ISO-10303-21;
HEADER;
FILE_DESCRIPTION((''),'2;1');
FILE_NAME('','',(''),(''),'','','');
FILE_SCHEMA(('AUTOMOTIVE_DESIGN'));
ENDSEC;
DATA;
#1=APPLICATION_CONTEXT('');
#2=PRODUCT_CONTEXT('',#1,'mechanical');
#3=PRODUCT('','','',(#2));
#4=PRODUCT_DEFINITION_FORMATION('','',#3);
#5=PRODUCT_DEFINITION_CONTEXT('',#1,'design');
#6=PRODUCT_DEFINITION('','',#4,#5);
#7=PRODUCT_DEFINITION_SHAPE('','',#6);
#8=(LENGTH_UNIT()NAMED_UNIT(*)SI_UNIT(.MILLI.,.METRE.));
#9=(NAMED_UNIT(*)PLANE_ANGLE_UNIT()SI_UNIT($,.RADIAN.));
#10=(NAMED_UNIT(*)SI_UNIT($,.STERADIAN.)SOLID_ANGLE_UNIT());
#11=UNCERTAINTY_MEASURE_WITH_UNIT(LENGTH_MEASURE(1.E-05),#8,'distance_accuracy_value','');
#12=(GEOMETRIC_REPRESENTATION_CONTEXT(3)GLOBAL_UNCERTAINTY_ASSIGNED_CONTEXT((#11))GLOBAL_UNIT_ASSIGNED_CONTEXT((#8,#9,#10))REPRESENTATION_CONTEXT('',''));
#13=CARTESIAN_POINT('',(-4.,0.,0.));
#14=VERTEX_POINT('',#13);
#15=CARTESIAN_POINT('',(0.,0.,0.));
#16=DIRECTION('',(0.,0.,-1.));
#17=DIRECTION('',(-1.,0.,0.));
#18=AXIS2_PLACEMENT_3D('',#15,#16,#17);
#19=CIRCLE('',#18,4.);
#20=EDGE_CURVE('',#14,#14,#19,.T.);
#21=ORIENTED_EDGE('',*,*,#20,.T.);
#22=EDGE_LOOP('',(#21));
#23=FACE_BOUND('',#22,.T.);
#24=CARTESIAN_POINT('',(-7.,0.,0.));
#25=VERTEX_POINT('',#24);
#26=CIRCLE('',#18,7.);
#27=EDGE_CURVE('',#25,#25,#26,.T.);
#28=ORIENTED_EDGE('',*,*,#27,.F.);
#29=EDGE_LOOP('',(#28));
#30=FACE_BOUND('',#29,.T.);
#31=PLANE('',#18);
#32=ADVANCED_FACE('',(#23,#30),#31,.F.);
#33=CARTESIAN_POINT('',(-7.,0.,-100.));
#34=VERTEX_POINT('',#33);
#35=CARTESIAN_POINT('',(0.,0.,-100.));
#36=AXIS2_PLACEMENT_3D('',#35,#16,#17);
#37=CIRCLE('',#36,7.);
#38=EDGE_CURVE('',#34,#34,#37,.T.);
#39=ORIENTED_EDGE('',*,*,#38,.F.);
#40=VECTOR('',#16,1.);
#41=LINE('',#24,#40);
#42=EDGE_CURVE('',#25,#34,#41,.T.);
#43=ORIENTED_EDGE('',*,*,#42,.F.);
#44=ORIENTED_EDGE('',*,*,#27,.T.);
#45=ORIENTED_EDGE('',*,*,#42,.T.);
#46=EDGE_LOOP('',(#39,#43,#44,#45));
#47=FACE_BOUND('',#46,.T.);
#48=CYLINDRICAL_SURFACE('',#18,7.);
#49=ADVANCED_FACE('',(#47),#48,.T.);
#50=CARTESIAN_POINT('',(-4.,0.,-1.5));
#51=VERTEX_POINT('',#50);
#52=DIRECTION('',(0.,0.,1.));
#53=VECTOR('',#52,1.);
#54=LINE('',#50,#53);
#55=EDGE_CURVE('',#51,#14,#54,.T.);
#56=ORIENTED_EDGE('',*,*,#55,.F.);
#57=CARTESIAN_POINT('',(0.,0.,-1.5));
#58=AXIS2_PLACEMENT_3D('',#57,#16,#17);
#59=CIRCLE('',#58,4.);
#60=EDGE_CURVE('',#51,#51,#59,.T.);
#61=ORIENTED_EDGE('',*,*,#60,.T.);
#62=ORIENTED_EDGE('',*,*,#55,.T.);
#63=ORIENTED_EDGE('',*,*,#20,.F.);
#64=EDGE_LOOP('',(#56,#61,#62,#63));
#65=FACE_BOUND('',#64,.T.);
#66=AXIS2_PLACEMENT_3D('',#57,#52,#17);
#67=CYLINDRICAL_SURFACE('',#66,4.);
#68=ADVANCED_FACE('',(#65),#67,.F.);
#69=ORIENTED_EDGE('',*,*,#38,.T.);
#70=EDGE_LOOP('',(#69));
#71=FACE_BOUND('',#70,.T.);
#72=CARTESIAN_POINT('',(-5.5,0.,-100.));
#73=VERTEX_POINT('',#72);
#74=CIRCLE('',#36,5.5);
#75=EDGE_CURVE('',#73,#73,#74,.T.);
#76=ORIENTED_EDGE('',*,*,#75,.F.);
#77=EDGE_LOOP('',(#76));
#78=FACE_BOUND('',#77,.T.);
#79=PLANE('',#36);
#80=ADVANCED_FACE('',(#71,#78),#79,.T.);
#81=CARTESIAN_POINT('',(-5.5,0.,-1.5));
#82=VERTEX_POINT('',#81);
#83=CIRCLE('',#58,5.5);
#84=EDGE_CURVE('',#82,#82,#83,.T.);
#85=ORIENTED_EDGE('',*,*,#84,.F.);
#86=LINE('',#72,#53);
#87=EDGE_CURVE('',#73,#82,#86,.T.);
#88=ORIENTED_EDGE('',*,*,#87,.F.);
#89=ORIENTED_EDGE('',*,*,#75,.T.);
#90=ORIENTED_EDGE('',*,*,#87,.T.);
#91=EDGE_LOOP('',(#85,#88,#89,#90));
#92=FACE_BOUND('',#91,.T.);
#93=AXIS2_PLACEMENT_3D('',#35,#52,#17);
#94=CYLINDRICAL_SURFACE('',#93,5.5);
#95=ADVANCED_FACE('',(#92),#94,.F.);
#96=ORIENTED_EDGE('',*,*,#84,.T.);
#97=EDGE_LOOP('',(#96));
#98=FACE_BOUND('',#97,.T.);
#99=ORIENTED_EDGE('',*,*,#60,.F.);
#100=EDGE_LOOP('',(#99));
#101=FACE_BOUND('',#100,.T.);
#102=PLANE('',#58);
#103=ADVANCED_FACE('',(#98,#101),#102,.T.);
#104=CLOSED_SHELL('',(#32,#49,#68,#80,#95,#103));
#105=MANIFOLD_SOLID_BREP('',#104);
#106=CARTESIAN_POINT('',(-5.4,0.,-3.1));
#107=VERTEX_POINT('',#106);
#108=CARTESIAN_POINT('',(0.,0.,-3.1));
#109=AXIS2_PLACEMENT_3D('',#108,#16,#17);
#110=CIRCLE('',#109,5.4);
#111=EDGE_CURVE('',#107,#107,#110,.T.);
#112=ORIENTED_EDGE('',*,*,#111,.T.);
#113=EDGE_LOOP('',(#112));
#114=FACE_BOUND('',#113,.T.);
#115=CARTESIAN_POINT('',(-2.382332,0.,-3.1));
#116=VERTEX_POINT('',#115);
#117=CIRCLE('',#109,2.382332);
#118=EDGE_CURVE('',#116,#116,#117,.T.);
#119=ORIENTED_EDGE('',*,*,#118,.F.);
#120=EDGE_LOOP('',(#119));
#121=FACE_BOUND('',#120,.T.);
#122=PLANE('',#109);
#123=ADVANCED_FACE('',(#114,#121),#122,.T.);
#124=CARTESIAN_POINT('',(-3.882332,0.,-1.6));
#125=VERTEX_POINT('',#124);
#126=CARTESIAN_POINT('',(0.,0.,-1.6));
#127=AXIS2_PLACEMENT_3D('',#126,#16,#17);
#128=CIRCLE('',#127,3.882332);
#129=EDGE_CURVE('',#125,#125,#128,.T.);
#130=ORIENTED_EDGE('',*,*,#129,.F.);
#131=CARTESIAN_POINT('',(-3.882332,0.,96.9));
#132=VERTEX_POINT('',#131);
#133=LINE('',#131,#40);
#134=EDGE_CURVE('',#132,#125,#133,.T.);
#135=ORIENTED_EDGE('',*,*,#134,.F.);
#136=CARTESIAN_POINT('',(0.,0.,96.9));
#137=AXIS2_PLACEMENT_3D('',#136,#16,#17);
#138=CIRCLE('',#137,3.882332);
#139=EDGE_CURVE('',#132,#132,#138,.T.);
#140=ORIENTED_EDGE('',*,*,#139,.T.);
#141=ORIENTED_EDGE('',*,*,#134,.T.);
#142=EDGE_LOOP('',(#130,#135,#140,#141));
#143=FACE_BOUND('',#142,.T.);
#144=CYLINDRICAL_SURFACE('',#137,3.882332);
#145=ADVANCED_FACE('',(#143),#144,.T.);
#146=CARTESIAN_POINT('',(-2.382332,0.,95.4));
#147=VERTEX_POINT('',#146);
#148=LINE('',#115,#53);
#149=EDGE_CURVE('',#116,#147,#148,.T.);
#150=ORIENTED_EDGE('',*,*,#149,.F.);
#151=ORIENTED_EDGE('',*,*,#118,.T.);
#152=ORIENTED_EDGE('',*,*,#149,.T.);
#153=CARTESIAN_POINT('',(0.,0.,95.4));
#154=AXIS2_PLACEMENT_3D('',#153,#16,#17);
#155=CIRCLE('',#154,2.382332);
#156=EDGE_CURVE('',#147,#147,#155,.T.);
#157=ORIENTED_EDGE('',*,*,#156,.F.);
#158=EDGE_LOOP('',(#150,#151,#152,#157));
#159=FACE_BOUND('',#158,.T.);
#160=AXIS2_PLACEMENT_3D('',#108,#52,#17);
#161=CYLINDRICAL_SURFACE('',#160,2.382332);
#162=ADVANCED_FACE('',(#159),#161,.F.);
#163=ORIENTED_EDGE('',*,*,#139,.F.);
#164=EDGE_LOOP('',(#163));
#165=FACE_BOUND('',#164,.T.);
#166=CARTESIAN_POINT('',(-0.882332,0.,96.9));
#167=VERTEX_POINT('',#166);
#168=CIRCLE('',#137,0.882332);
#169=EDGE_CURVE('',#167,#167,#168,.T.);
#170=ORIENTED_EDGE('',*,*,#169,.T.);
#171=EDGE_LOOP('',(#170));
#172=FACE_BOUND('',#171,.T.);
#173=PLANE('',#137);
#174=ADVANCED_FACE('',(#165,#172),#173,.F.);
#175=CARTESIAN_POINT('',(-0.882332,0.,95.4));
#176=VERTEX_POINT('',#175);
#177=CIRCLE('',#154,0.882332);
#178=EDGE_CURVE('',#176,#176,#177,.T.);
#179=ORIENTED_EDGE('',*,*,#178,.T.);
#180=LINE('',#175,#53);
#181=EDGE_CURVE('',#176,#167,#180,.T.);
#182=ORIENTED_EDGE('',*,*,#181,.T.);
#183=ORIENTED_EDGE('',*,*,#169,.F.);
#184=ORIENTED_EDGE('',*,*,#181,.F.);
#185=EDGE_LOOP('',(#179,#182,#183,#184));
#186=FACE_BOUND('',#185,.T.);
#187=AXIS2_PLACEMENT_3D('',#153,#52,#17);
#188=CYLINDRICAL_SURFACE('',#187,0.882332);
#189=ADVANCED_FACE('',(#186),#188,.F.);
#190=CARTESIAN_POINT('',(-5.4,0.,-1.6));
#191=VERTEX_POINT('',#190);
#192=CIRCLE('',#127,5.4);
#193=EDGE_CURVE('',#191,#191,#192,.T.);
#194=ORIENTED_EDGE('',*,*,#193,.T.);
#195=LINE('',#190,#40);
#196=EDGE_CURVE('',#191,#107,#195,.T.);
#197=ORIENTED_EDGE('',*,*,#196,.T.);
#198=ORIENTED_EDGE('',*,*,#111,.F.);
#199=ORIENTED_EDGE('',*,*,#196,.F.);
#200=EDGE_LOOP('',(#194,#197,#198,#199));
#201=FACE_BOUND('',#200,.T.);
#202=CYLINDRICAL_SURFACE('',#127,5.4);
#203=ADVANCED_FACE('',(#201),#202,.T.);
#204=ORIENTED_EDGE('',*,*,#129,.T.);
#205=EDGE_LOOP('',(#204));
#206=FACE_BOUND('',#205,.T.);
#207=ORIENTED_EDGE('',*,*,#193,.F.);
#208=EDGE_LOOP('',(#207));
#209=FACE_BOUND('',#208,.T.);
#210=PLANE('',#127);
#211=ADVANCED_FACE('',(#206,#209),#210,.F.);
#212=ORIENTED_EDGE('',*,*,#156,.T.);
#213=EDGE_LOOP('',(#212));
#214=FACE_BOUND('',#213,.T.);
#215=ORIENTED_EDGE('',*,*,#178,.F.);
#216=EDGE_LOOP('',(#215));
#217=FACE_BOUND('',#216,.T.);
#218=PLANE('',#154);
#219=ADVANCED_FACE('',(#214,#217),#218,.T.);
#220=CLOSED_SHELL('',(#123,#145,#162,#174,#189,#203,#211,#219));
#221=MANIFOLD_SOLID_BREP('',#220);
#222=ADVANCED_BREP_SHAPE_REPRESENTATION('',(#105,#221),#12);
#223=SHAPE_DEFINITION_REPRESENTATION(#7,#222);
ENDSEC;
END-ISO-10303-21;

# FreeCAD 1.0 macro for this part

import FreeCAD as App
import Part
import Sketcher
from FreeCAD import Vector

doc = App.newDocument("Part")
params = doc.addObject("Spreadsheet::Sheet", "Params")
for row, (alias, value) in enumerate([
    ("sketch1_width", "3 mm"),
    ("sketch1_height", "100 mm"),
    ("revolution_angle", "360 deg"),
], start=1):
    params.set(f"A{row}", alias)
    params.set(f"B{row}", "=" + value)
    params.setAlias(f"B{row}", alias)

body = doc.addObject("PartDesign::Body", "Body")
body.AllowCompound = True

sketch1 = doc.addObject("Sketcher::SketchObject", "Sketch")
body.addObject(sketch1)
sketch1.AttachmentSupport = (doc.XZ_Plane, [""])
sketch1.MapMode = "FlatFace"
sketch1.addGeometry([
    Part.LineSegment(Vector(-5.4, -3.1, 0), Vector(-2.382332, -3.1, 0)),
    Part.LineSegment(Vector(-2.382332, -3.1, 0), Vector(-2.382332, 95.4, 0)),
    Part.LineSegment(Vector(-2.382332, 95.4, 0), Vector(-0.882332, 95.4, 0)),
    Part.LineSegment(Vector(-0.882332, 95.4, 0), Vector(-0.882332, 96.9, 0)),
    Part.LineSegment(Vector(-0.882332, 96.9, 0), Vector(-3.882332, 96.9, 0)),
    Part.LineSegment(Vector(-3.882332, 96.9, 0), Vector(-3.882332, -1.6, 0)),
    Part.LineSegment(Vector(-3.882332, -1.6, 0), Vector(-5.4, -1.6, 0)),
    Part.LineSegment(Vector(-5.4, -1.6, 0), Vector(-5.4, -3.1, 0)),
    Part.LineSegment(Vector(-4, 0, 0), Vector(-7, 0, 0)),
    Part.LineSegment(Vector(-7, 0, 0), Vector(-7, -100, 0)),
    Part.LineSegment(Vector(-7, -100, 0), Vector(-5.5, -100, 0)),
    Part.LineSegment(Vector(-5.5, -100, 0), Vector(-5.5, -1.5, 0)),
    Part.LineSegment(Vector(-5.5, -1.5, 0), Vector(-4, -1.5, 0)),
    Part.LineSegment(Vector(-4, -1.5, 0), Vector(-4, 0, 0)),
], False)
sketch1.addConstraint([
    Sketcher.Constraint("Coincident", 0, 2, 1, 1),
    Sketcher.Constraint("Coincident", 1, 2, 2, 1),
    Sketcher.Constraint("Coincident", 2, 2, 3, 1),
    Sketcher.Constraint("Coincident", 3, 2, 4, 1),
    Sketcher.Constraint("Coincident", 4, 2, 5, 1),
    Sketcher.Constraint("Coincident", 5, 2, 6, 1),
    Sketcher.Constraint("Coincident", 6, 2, 7, 1),
    Sketcher.Constraint("Coincident", 7, 2, 0, 1),
    Sketcher.Constraint("Coincident", 8, 2, 9, 1),
    Sketcher.Constraint("Coincident", 9, 2, 10, 1),
    Sketcher.Constraint("Coincident", 10, 2, 11, 1),
    Sketcher.Constraint("Coincident", 11, 2, 12, 1),
    Sketcher.Constraint("Coincident", 12, 2, 13, 1),
    Sketcher.Constraint("Coincident", 13, 2, 8, 1),
    Sketcher.Constraint("Horizontal", 0),
    Sketcher.Constraint("Vertical", 1),
    Sketcher.Constraint("Horizontal", 2),
    Sketcher.Constraint("Vertical", 3),
    Sketcher.Constraint("Horizontal", 4),
    Sketcher.Constraint("Vertical", 5),
    Sketcher.Constraint("Horizontal", 6),
    Sketcher.Constraint("Vertical", 7),
    Sketcher.Constraint("Horizontal", 8),
    Sketcher.Constraint("Vertical", 9),
    Sketcher.Constraint("Horizontal", 10),
    Sketcher.Constraint("Vertical", 11),
    Sketcher.Constraint("Horizontal", 12),
    Sketcher.Constraint("Vertical", 13),
    Sketcher.Constraint("PointOnObject", 8, 2, -1),
    Sketcher.Constraint("Equal", 4, 8),
    Sketcher.Constraint("Equal", 2, 10),
    Sketcher.Constraint("Equal", 10, 12),
    Sketcher.Constraint("Equal", 12, 3),
    Sketcher.Constraint("Equal", 1, 5),
    Sketcher.Constraint("Equal", 5, 11),
    Sketcher.Constraint("Equal", 7, 13),
    Sketcher.Constraint("DistanceX", 4, 2, 4, 1, 3.0),
    Sketcher.Constraint("DistanceY", 9, 2, 9, 1, 100.0),
    Sketcher.Constraint("DistanceX", 8, 2, -1, 1, 7.0),
    Sketcher.Constraint("DistanceY", 0, 2, -1, 1, 3.1),
    Sketcher.Constraint("DistanceX", 6, 2, -1, 1, 5.4),
    Sketcher.Constraint("DistanceX", 0, 1, 0, 2, 3.017668),
])
sketch1.setExpression("Constraints[36]", "Params.sketch1_width")
sketch1.setExpression("Constraints[37]", "Params.sketch1_height")
revolution = doc.addObject("PartDesign::Revolution", "Revolution")
body.addObject(revolution)
revolution.Profile = sketch1
revolution.ReferenceAxis = (sketch1, ["V_Axis"])
revolution.setExpression("Angle", "Params.revolution_angle")

doc.recompute()
